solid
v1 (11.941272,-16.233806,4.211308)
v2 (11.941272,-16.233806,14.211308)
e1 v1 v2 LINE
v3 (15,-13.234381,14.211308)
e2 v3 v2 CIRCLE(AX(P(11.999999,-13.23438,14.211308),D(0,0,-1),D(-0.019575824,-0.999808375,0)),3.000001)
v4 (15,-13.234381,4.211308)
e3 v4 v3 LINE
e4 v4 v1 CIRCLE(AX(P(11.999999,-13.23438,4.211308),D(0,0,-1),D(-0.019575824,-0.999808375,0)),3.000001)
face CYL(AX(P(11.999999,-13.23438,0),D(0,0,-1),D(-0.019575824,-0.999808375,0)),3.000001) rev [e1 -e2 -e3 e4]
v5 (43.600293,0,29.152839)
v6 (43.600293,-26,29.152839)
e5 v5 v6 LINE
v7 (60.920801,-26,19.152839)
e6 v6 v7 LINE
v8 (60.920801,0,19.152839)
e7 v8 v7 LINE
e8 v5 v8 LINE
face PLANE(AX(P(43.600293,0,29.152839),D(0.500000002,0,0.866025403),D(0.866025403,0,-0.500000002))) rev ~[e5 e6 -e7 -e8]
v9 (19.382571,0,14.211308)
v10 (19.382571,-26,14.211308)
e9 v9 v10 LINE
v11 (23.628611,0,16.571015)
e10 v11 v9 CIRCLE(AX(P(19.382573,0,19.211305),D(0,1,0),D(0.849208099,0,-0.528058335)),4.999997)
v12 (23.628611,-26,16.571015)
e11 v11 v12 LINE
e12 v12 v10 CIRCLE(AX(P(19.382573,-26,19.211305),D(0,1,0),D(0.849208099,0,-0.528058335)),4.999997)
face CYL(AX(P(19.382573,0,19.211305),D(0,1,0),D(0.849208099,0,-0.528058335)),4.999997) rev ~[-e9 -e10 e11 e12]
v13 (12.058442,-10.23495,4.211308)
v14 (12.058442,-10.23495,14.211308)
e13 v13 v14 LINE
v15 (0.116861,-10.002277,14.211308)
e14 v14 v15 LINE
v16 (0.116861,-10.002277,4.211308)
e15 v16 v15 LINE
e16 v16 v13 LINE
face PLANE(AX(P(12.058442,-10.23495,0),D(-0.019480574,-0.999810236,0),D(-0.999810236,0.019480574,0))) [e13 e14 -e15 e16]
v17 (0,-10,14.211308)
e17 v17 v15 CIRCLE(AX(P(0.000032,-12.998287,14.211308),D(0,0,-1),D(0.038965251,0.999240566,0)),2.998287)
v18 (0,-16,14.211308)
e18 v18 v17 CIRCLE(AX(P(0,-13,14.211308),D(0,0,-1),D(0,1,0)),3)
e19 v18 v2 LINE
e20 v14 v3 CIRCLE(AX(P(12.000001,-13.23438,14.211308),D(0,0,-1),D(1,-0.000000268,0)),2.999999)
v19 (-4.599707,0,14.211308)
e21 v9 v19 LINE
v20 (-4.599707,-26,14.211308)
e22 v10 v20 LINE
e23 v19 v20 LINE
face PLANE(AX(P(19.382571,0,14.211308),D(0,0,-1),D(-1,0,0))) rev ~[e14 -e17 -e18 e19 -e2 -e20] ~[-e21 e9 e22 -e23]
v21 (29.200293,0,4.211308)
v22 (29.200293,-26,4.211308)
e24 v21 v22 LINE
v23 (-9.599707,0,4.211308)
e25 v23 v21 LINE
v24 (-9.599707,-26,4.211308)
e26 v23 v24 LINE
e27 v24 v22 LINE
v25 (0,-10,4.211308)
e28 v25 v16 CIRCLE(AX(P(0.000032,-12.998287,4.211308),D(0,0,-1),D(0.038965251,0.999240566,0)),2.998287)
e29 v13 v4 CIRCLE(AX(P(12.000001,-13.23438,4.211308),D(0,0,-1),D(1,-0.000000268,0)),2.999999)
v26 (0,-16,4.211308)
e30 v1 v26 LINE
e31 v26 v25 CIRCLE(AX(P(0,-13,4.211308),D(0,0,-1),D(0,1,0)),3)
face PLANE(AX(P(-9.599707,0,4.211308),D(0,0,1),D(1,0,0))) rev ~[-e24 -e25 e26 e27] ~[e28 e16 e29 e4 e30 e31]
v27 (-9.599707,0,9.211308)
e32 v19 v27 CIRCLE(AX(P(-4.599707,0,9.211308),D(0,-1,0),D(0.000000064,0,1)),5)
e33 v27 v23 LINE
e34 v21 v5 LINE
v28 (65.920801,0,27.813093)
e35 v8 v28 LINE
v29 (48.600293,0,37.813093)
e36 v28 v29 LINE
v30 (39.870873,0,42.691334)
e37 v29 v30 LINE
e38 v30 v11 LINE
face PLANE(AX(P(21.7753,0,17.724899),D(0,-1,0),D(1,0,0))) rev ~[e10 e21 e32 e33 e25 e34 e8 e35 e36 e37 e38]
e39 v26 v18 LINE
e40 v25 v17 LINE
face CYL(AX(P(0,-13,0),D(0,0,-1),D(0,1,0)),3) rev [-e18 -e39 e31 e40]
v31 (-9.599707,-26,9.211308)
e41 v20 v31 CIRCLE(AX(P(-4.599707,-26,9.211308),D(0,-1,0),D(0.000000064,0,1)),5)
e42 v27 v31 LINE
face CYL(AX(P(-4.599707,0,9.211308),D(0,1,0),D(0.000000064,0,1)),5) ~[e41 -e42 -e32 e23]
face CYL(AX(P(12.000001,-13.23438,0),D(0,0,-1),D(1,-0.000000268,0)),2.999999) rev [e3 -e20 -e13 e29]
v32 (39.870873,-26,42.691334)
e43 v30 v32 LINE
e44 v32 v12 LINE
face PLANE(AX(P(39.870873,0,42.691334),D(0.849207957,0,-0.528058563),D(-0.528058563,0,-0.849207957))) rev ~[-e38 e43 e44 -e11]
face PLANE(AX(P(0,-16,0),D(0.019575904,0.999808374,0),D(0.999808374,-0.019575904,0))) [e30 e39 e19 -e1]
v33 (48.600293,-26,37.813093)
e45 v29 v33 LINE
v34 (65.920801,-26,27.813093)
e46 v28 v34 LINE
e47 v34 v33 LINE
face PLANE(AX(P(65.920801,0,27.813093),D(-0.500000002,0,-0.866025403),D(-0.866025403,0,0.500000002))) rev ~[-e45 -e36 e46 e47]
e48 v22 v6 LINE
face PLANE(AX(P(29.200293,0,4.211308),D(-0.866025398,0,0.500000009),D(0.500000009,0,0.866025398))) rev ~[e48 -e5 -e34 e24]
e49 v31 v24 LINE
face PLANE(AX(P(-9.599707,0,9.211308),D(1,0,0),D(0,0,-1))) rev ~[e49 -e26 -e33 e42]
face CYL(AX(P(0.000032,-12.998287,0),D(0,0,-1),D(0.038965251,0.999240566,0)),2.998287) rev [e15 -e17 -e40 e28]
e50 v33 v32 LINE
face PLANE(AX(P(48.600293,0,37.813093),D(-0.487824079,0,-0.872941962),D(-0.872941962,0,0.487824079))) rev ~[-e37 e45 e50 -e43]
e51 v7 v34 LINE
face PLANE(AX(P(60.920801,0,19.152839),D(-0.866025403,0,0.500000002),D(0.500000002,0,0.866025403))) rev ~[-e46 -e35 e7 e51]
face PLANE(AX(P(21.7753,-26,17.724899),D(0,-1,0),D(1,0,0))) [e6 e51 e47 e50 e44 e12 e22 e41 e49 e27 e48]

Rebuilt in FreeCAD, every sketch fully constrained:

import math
import FreeCAD as App
import Part
import Sketcher
Q = App.Units.Quantity

doc = App.newDocument("Part")
body = doc.addObject("PartDesign::Body", "Body")

sketch1 = body.newObject("Sketcher::SketchObject", "Sketch")
sketch1.AttachmentSupport = (doc.getObject("XZ_Plane"), [""])
sketch1.MapMode = "FlatFace"
sketch1.addGeometry(Part.ArcOfCircle(Part.Circle(App.Vector(-4.6, 9.2, 0), App.Vector(0, 0, 1), 5), math.radians(90), math.radians(180)), False)
sketch1.addGeometry(Part.LineSegment(App.Vector(-9.6, 9.2, 0), App.Vector(-9.6, 4.2, 0)), False)
sketch1.addGeometry(Part.LineSegment(App.Vector(-9.6, 4.2, 0), App.Vector(29.2, 4.2, 0)), False)
sketch1.addGeometry(Part.LineSegment(App.Vector(29.2, 4.2, 0), App.Vector(43.6, 29.2, 0)), False)
sketch1.addGeometry(Part.LineSegment(App.Vector(43.6, 29.2, 0), App.Vector(60.9, 19.2, 0)), False)
sketch1.addGeometry(Part.LineSegment(App.Vector(60.9, 19.2, 0), App.Vector(65.9, 27.8, 0)), False)
sketch1.addGeometry(Part.LineSegment(App.Vector(65.9, 27.8, 0), App.Vector(48.6, 37.8, 0)), False)
sketch1.addGeometry(Part.LineSegment(App.Vector(48.6, 37.8, 0), App.Vector(39.9, 42.7, 0)), False)
sketch1.addGeometry(Part.LineSegment(App.Vector(39.9, 42.7, 0), App.Vector(23.6, 16.6, 0)), False)
sketch1.addGeometry(Part.ArcOfCircle(Part.Circle(App.Vector(19.4, 19.2, 0), App.Vector(0, 0, 1), 5), math.radians(-90), math.radians(-32)), False)
sketch1.addGeometry(Part.LineSegment(App.Vector(19.4, 14.2, 0), App.Vector(-4.6, 14.2, 0)), False)
sketch1.addConstraint(Sketcher.Constraint("Tangent", 0, 2, 1, 1))
sketch1.addConstraint(Sketcher.Constraint("Coincident", 1, 2, 2, 1))
sketch1.addConstraint(Sketcher.Constraint("Coincident", 2, 2, 3, 1))
sketch1.addConstraint(Sketcher.Constraint("Coincident", 3, 2, 4, 1))
sketch1.addConstraint(Sketcher.Constraint("Coincident", 4, 2, 5, 1))
sketch1.addConstraint(Sketcher.Constraint("Coincident", 5, 2, 6, 1))
sketch1.addConstraint(Sketcher.Constraint("Coincident", 6, 2, 7, 1))
sketch1.addConstraint(Sketcher.Constraint("Coincident", 7, 2, 8, 1))
sketch1.addConstraint(Sketcher.Constraint("Tangent", 8, 2, 9, 2))
sketch1.addConstraint(Sketcher.Constraint("Tangent", 9, 1, 10, 1))
sketch1.addConstraint(Sketcher.Constraint("Tangent", 10, 2, 0, 1))
sketch1.addConstraint(Sketcher.Constraint("Vertical", 1))
sketch1.addConstraint(Sketcher.Constraint("Horizontal", 2))
sketch1.addConstraint(Sketcher.Constraint("Horizontal", 10))
sketch1.addConstraint(Sketcher.Constraint("Perpendicular", 3, 4))
sketch1.addConstraint(Sketcher.Constraint("Perpendicular", 4, 5))
sketch1.addConstraint(Sketcher.Constraint("Perpendicular", 5, 6))
sketch1.addConstraint(Sketcher.Constraint("Equal", 4, 6))
sketch1.addConstraint(Sketcher.Constraint("Equal", 5, 7))
sketch1.addConstraint(Sketcher.Constraint("Radius", 0, Q("5 mm")))
sketch1.addConstraint(Sketcher.Constraint("DistanceY", 1, 2, 1, 1, Q("5 mm")))
sketch1.addConstraint(Sketcher.Constraint("Angle", 3, Q("59.999999 deg")))
sketch1.addConstraint(Sketcher.Constraint("Distance", 4, Q("20 mm")))
sketch1.addConstraint(Sketcher.Constraint("Distance", 5, Q("10 mm")))
sketch1.addConstraint(Sketcher.Constraint("DistanceX", 2, 1, 2, 2, Q("38.8 mm")))
sketch1.addConstraint(Sketcher.Constraint("Distance", 3, Q("28.799999 mm")))
sketch1.addConstraint(Sketcher.Constraint("Radius", 9, Q("4.999997 mm")))
sketch1.addConstraint(Sketcher.Constraint("DistanceX", 10, 2, 10, 1, Q("23.982278 mm")))
sketch1.addConstraint(Sketcher.Constraint("DistanceX", -1, 1, 4, 2, Q("60.920801 mm")))
sketch1.addConstraint(Sketcher.Constraint("DistanceX", 9, 3, 7, 2, Q("20.4883 mm")))
sketch1.addConstraint(Sketcher.Constraint("DistanceY", -1, 1, 0, 3, Q("9.211308 mm")))
pad1 = body.newObject("PartDesign::Pad", "Pad")
pad1.Profile = sketch1
pad1.Length = 26

sketch2 = body.newObject("Sketcher::SketchObject", "Sketch001")
sketch2.AttachmentSupport = (doc.getObject("XY_Plane"), [""])
sketch2.MapMode = "FlatFace"
sketch2.addGeometry(Part.ArcOfCircle(Part.Circle(App.Vector(0, -13, 0), App.Vector(0, 0, 1), 3), math.radians(90), math.radians(270)), False)
sketch2.addGeometry(Part.LineSegment(App.Vector(0, -16, 0), App.Vector(11.941272, -16.233806, 0)), False)
sketch2.addGeometry(Part.ArcOfCircle(Part.Circle(App.Vector(11.999999, -13.23438, 0), App.Vector(0, 0, 1), 3.000001), math.radians(-91.121684), math.radians(-0.000012)), False)
sketch2.addGeometry(Part.ArcOfCircle(Part.Circle(App.Vector(12.000001, -13.23438, 0), App.Vector(0, 0, 1), 2.999999), math.radians(-0.000015), math.radians(88.883779)), False)
sketch2.addGeometry(Part.LineSegment(App.Vector(12.058442, -10.23495, 0), App.Vector(0.116861, -10.002277, 0)), False)
sketch2.addGeometry(Part.ArcOfCircle(Part.Circle(App.Vector(0.000032, -12.998287, 0), App.Vector(0, 0, 1), 2.998287), math.radians(87.76689), math.radians(90.000612)), False)
sketch2.addConstraint(Sketcher.Constraint("Coincident", 0, 2, 1, 1))
sketch2.addConstraint(Sketcher.Constraint("Coincident", 1, 2, 2, 1))
sketch2.addConstraint(Sketcher.Constraint("Coincident", 2, 2, 3, 1))
sketch2.addConstraint(Sketcher.Constraint("Coincident", 3, 2, 4, 1))
sketch2.addConstraint(Sketcher.Constraint("Coincident", 4, 2, 5, 1))
sketch2.addConstraint(Sketcher.Constraint("Coincident", 5, 2, 0, 1))
sketch2.addConstraint(Sketcher.Constraint("Coincident", 3, 3, 2, 3))
sketch2.addConstraint(Sketcher.Constraint("PointOnObject", 0, 3, -2))
sketch2.addConstraint(Sketcher.Constraint("PointOnObject", 0, 2, -2))
sketch2.addConstraint(Sketcher.Constraint("PointOnObject", 5, 2, -2))
sketch2.addConstraint(Sketcher.Constraint("Radius", 0, Q("3 mm")))
sketch2.addConstraint(Sketcher.Constraint("Radius", 2, Q("3.000001 mm")))
sketch2.addConstraint(Sketcher.Constraint("DistanceY", 0, 3, -1, 1, Q("13 mm")))
sketch2.addConstraint(Sketcher.Constraint("DistanceX", -1, 1, 2, 3, Q("11.999999 mm")))
sketch2.addConstraint(Sketcher.Constraint("Radius", 5, Q("2.998287 mm")))
sketch2.addConstraint(Sketcher.Constraint("Distance", 1, Q("11.943561 mm")))
sketch2.addConstraint(Sketcher.Constraint("DistanceY", 2, 3, -1, 1, Q("13.23438 mm")))
sketch2.addConstraint(Sketcher.Constraint("DistanceY", 2, 2, -1, 1, Q("13.234381 mm")))
sketch2.addConstraint(Sketcher.Constraint("DistanceX", -1, 1, 3, 2, Q("12.058442 mm")))
sketch2.addConstraint(Sketcher.Constraint("DistanceX", -1, 1, 4, 2, Q("0.116861 mm")))
sketch2.addConstraint(Sketcher.Constraint("DistanceX", 5, 3, 3, 3, Q("11.999969 mm")))
pocket1 = body.newObject("PartDesign::Pocket", "Pocket")
pocket1.Profile = sketch2
pocket1.Type = "ThroughAll"
pocket1.Reversed = True

doc.recompute()
